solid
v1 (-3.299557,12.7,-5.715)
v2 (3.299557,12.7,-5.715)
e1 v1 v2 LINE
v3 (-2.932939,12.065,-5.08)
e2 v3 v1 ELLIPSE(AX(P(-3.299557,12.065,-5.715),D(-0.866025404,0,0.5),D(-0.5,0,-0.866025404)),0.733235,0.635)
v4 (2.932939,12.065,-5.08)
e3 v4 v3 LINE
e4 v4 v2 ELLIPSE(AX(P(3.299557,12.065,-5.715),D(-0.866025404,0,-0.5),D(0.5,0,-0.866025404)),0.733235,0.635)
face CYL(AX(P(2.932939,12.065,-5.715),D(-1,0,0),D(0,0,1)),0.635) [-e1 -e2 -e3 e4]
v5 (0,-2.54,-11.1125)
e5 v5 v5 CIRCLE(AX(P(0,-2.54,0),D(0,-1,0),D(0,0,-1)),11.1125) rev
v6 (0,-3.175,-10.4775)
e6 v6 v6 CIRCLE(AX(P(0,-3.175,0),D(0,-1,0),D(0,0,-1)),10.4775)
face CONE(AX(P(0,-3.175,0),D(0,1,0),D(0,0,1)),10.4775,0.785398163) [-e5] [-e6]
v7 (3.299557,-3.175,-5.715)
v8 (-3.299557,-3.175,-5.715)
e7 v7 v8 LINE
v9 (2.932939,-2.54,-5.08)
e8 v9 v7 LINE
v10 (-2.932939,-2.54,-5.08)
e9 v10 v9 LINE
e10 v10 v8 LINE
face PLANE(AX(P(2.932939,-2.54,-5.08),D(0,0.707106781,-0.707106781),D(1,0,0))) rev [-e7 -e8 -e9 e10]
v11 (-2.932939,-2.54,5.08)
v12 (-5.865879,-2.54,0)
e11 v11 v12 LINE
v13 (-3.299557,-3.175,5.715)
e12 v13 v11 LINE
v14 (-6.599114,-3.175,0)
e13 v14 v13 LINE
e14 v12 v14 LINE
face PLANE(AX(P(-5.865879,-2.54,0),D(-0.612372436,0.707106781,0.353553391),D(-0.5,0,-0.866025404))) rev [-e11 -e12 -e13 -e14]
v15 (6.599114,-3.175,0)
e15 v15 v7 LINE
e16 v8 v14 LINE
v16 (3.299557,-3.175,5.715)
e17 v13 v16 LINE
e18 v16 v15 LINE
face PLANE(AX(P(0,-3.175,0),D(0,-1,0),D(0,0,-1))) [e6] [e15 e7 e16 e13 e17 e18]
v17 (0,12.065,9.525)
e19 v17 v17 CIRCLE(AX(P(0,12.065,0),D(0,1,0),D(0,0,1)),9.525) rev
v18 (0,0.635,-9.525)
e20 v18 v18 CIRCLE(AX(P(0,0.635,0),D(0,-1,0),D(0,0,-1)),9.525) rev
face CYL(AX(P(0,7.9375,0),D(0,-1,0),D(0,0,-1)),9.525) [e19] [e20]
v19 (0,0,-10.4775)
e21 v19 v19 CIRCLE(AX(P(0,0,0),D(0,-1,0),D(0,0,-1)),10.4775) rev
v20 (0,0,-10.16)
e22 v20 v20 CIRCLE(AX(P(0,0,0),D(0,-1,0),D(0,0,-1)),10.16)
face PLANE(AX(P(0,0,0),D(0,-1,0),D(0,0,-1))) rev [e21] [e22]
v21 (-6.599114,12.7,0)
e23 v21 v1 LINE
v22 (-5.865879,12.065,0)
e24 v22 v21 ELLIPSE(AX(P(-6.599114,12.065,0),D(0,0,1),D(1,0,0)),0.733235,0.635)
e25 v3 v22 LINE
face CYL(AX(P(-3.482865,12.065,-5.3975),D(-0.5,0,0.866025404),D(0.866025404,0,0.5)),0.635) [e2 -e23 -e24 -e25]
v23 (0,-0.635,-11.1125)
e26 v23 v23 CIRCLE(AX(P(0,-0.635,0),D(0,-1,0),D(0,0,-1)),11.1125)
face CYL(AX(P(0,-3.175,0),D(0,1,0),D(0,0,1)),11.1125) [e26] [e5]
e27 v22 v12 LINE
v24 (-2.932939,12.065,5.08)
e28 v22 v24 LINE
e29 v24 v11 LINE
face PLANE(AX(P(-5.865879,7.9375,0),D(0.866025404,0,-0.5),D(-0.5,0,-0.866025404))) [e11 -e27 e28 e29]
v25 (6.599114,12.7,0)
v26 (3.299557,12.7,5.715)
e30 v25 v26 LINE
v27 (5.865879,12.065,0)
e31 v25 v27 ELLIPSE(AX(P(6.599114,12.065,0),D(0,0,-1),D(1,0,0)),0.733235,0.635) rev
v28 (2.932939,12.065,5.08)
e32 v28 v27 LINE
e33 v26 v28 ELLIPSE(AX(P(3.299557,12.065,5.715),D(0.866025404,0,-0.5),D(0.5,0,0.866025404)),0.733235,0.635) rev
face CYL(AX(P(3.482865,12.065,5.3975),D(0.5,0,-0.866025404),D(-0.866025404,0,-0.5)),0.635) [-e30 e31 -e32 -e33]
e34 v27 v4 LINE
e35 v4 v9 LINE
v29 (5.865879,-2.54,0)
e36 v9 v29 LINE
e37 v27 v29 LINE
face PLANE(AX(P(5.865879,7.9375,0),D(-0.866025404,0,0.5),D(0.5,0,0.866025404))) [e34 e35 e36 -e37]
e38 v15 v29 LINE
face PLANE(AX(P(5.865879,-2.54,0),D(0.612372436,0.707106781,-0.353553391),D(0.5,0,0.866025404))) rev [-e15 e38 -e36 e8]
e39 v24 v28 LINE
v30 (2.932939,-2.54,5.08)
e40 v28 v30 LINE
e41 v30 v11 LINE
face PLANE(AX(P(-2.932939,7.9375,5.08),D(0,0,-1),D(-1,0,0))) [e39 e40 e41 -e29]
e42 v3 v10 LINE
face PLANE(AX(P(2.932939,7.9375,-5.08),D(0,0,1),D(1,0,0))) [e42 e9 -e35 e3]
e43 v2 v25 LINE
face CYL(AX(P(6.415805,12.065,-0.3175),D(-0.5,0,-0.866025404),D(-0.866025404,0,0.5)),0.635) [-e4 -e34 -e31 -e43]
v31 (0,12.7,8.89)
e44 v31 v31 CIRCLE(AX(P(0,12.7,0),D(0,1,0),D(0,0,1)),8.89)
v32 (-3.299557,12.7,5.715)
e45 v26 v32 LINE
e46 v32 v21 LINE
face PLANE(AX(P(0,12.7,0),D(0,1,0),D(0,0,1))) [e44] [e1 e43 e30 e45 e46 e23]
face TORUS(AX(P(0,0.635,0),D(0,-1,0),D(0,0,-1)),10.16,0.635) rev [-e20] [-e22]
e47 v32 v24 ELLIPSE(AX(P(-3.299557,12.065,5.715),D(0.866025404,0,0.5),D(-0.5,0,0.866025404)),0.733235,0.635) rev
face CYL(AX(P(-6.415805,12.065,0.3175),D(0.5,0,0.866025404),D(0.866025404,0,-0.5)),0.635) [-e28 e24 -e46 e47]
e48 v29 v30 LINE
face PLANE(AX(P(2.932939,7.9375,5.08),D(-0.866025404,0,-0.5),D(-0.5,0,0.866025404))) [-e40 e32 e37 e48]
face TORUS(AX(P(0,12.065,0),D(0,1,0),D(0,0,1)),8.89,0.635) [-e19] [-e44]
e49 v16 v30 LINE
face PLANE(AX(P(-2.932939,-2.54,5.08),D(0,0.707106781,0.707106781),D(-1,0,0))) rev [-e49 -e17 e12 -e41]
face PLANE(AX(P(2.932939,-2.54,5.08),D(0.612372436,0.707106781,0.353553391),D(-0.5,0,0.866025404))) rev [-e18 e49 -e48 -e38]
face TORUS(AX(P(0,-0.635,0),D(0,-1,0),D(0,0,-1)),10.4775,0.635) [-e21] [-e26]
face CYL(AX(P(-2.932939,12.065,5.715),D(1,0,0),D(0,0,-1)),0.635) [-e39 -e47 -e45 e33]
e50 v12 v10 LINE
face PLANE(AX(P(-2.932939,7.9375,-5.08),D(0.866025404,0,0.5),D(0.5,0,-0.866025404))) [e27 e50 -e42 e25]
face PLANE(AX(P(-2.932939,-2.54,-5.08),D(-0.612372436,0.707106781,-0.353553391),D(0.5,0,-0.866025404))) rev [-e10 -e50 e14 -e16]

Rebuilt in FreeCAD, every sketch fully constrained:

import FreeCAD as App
import Part
import Sketcher

V = App.Vector
Q = App.Units.Quantity


def edges_at(feature, points):
    """Names of the edges that pass closest to the given points."""
    edges = feature.Shape.Edges
    near = lambda p: min(range(len(edges)), key=lambda i: edges[i].distToShape(Part.Vertex(*p))[0])
    return sorted({f"Edge{near(p) + 1}" for p in points})

doc = App.newDocument("Part")
body = doc.addObject("PartDesign::Body", "Body")

sketch1 = doc.addObject("Sketcher::SketchObject", "Sketch")
body.addObject(sketch1)
sketch1.AttachmentSupport = (doc.XZ_Plane, [""])
sketch1.MapMode = "FlatFace"
sketch1.addGeometry([
    Part.Circle(V(0, 0, 0), V(0, 0, 1), 10),
    Part.LineSegment(V(3, -5, 0), V(6, 0, 0)),
    Part.LineSegment(V(6, 0, 0), V(3, 5, 0)),
    Part.LineSegment(V(3, 5, 0), V(-3, 5, 0)),
    Part.LineSegment(V(-3, 5, 0), V(-6, 0, 0)),
    Part.LineSegment(V(-6, 0, 0), V(-3, -5, 0)),
    Part.LineSegment(V(-3, -5, 0), V(3, -5, 0)),
], False)
sketch1.addConstraint([
    Sketcher.Constraint("Coincident", 1, 2, 2, 1),
    Sketcher.Constraint("Coincident", 2, 2, 3, 1),
    Sketcher.Constraint("Coincident", 3, 2, 4, 1),
    Sketcher.Constraint("Coincident", 4, 2, 5, 1),
    Sketcher.Constraint("Coincident", 5, 2, 6, 1),
    Sketcher.Constraint("Coincident", 6, 2, 1, 1),
    Sketcher.Constraint("Horizontal", 3),
    Sketcher.Constraint("Horizontal", 6),
    Sketcher.Constraint("Coincident", 0, 3, -1, 1),
    Sketcher.Constraint("Symmetric", 1, 2, 4, 2, -1, 1),
    Sketcher.Constraint("Symmetric", 2, 2, 5, 2, -1, 1),
    Sketcher.Constraint("PointOnObject", 1, 2, -1),
    Sketcher.Constraint("Parallel", 1, 4),
    Sketcher.Constraint("Vertical", 3, 2, 5, 2),
    Sketcher.Constraint("Diameter", 0, Q("0.75 in")),
    Sketcher.Constraint("Angle", 1, Q("60 deg")),
    Sketcher.Constraint("DistanceY", -1, 1, 2, 2, Q("0.2 in")),
    Sketcher.Constraint("DistanceX", 3, 2, 3, 1, 5.865879),
])
pad1 = doc.addObject("PartDesign::Pad", "Pad")
body.addObject(pad1)
pad1.Profile = sketch1
pad1.Length = Q("0.3125 in")
pad1.Reversed = True

sketch2 = doc.addObject("Sketcher::SketchObject", "Sketch001")
body.addObject(sketch2)
sketch2.AttachmentSupport = (doc.XZ_Plane, [""])
sketch2.MapMode = "FlatFace"
sketch2.AttachmentOffset = App.Placement(V(0, 0, -0.3125 * 25.4), App.Rotation())
sketch2.addGeometry([
    Part.Circle(V(0, 0, 0), V(0, 0, 1), 10),
    Part.LineSegment(V(-6, 0, 0), V(-3, -5, 0)),
    Part.LineSegment(V(-3, -5, 0), V(3, -5, 0)),
    Part.LineSegment(V(3, -5, 0), V(6, 0, 0)),
    Part.LineSegment(V(6, 0, 0), V(3, 5, 0)),
    Part.LineSegment(V(3, 5, 0), V(-3, 5, 0)),
    Part.LineSegment(V(-3, 5, 0), V(-6, 0, 0)),
], False)
sketch2.addConstraint([
    Sketcher.Constraint("Coincident", 1, 2, 2, 1),
    Sketcher.Constraint("Coincident", 2, 2, 3, 1),
    Sketcher.Constraint("Coincident", 3, 2, 4, 1),
    Sketcher.Constraint("Coincident", 4, 2, 5, 1),
    Sketcher.Constraint("Coincident", 5, 2, 6, 1),
    Sketcher.Constraint("Coincident", 6, 2, 1, 1),
    Sketcher.Constraint("Horizontal", 2),
    Sketcher.Constraint("Horizontal", 5),
    Sketcher.Constraint("Coincident", 0, 3, -1, 1),
    Sketcher.Constraint("Symmetric", 1, 2, 4, 2, -1, 1),
    Sketcher.Constraint("Symmetric", 3, 2, 6, 2, -1, 1),
    Sketcher.Constraint("PointOnObject", 3, 2, -1),
    Sketcher.Constraint("Parallel", 3, 6),
    Sketcher.Constraint("Vertical", 2, 2, 4, 2),
    Sketcher.Constraint("Diameter", 0, Q("0.75 in")),
    Sketcher.Constraint("Angle", 1, Q("-60 deg")),
    Sketcher.Constraint("DistanceY", 1, 2, -1, 1, Q("0.2 in")),
    Sketcher.Constraint("DistanceX", 2, 1, 2, 2, 5.865879),
])
pad2 = doc.addObject("PartDesign::Pad", "Pad001")
body.addObject(pad2)
pad2.Profile = sketch2
pad2.Length = Q("0.1875 in")
pad2.Reversed = True

sketch3 = doc.addObject("Sketcher::SketchObject", "Sketch002")
body.addObject(sketch3)
sketch3.AttachmentSupport = (doc.XZ_Plane, [""])
sketch3.MapMode = "FlatFace"
sketch3.addGeometry([
    Part.Circle(V(0, 0, 0), V(0, 0, 1), 11),
    Part.LineSegment(V(-6, 0, 0), V(-3, 5, 0)),
    Part.LineSegment(V(-3, 5, 0), V(3, 5, 0)),
    Part.LineSegment(V(3, 5, 0), V(6, 0, 0)),
    Part.LineSegment(V(6, 0, 0), V(3, -5, 0)),
    Part.LineSegment(V(3, -5, 0), V(-3, -5, 0)),
    Part.LineSegment(V(-3, -5, 0), V(-6, 0, 0)),
], False)
sketch3.addConstraint([
    Sketcher.Constraint("Coincident", 1, 2, 2, 1),
    Sketcher.Constraint("Coincident", 2, 2, 3, 1),
    Sketcher.Constraint("Coincident", 3, 2, 4, 1),
    Sketcher.Constraint("Coincident", 4, 2, 5, 1),
    Sketcher.Constraint("Coincident", 5, 2, 6, 1),
    Sketcher.Constraint("Coincident", 6, 2, 1, 1),
    Sketcher.Constraint("Horizontal", 2),
    Sketcher.Constraint("Horizontal", 5),
    Sketcher.Constraint("Coincident", 0, 3, -1, 1),
    Sketcher.Constraint("Symmetric", 1, 2, 4, 2, -1, 1),
    Sketcher.Constraint("Symmetric", 3, 2, 6, 2, -1, 1),
    Sketcher.Constraint("PointOnObject", 3, 2, -1),
    Sketcher.Constraint("Parallel", 3, 6),
    Sketcher.Constraint("Vertical", 2, 2, 4, 2),
    Sketcher.Constraint("Diameter", 0, Q("0.875 in")),
    Sketcher.Constraint("Angle", 1, Q("60 deg")),
    Sketcher.Constraint("DistanceY", -1, 1, 1, 2, Q("0.2 in")),
    Sketcher.Constraint("DistanceX", 2, 1, 2, 2, 5.865879),
])
pad3 = doc.addObject("PartDesign::Pad", "Pad002")
body.addObject(pad3)
pad3.Profile = sketch3
pad3.Length = Q("0.125 in")
doc.recompute()

fillet = doc.addObject("PartDesign::Fillet", "Fillet")
body.addObject(fillet)
fillet.Base = (pad3, edges_at(pad3, [(0, 0, -9.525), (0, 0, 11.113)]))
fillet.Radius = Q("0.025 in")
doc.recompute()

fillet2 = doc.addObject("PartDesign::Fillet", "Fillet001")
body.addObject(fillet2)
fillet2.Base = (fillet, edges_at(fillet, [
    (0, 12.7, -9.525),
    (0, 12.7, -5.08),
    (-4.399, 12.7, -2.54),
    (-4.399, 12.7, 2.54),
    (0, 12.7, 5.08),
    (4.399, 12.7, 2.54),
    (4.399, 12.7, -2.54),
]))
fillet2.Radius = Q("0.025 in")
doc.recompute()

chamfer = doc.addObject("PartDesign::Chamfer", "Chamfer")
body.addObject(chamfer)
chamfer.Base = (fillet2, edges_at(fillet2, [
    (0, -3.175, 11.113),
    (-4.399, -3.175, 2.54),
    (-4.399, -3.175, -2.54),
    (0, -3.175, -5.08),
    (4.399, -3.175, -2.54),
    (4.399, -3.175, 2.54),
    (0, -3.175, 5.08),
]))
chamfer.Size = Q("0.025 in")

doc.recompute()
